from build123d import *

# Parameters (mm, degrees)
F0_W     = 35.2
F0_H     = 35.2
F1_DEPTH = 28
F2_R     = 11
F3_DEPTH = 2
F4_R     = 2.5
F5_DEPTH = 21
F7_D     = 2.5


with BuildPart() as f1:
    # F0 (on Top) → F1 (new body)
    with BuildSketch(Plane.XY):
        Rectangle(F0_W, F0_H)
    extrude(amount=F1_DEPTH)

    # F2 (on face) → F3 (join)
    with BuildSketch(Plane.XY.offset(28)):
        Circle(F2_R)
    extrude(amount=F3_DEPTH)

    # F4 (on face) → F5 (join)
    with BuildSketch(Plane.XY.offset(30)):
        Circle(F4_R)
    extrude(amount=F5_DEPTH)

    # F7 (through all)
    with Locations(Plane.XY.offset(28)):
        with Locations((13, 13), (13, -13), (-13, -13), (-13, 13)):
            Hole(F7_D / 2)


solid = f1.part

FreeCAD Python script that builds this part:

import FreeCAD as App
import Part
import Sketcher
from FreeCAD import Vector
Q = App.Units.Quantity


def add_polygon(sketch, points):
    """Adds a closed chain of lines whose ends are joined by coincident constraints."""
    first, n = sketch.GeometryCount, len(points)
    for a, b in zip(points, points[1:] + points[:1]):
        sketch.addGeometry(Part.LineSegment(App.Vector(*a, 0), App.Vector(*b, 0)), False)
    for i in range(n):
        sketch.addConstraint(Sketcher.Constraint("Coincident", first + i, 2, first + (i + 1) % n, 1))

doc = App.newDocument("Part")
params = doc.addObject("Spreadsheet::Sheet", "Params")
for row, (alias, value) in enumerate([
    ("sketch1_width", "35.2 mm"),
    ("pad1_length", "28 mm"),
    ("sketch2_diameter", "22 mm"),
    ("pad2_length", "2 mm"),
    ("sketch3_diameter", "5 mm"),
    ("pad3_length", "21 mm"),
    ("sketch4_diameter", "2.5 mm"),
    ("hole_diameter", "2.5 mm"),
], start=1):
    params.set(f"A{row}", alias)
    params.set(f"B{row}", "=" + value)
    params.setAlias(f"B{row}", alias)

body = doc.addObject("PartDesign::Body", "Body")

sketch1 = doc.addObject("Sketcher::SketchObject", "Sketch")
body.addObject(sketch1)
sketch1.AttachmentSupport = (doc.XY_Plane, [""])
sketch1.MapMode = "FlatFace"
add_polygon(sketch1, [(-18, 18), (-18, -18), (18, -18), (18, 18)])
sketch1.addConstraint(Sketcher.Constraint("Vertical", 0))
sketch1.addConstraint(Sketcher.Constraint("Horizontal", 1))
sketch1.addConstraint(Sketcher.Constraint("Vertical", 2))
sketch1.addConstraint(Sketcher.Constraint("Horizontal", 3))
sketch1.addConstraint(Sketcher.Constraint("Symmetric", 0, 2, 2, 2, -1, 1))
sketch1.addConstraint(Sketcher.Constraint("Equal", 3, 0))
sketch1.addConstraint(Sketcher.Constraint("DistanceX", 1, 1, 1, 2, Q("35.2 mm")))
sketch1.setExpression("Constraints[10]", "Params.sketch1_width")
pad1 = doc.addObject("PartDesign::Pad", "Pad")
body.addObject(pad1)
pad1.Profile = sketch1
pad1.setExpression("Length", "Params.pad1_length")

sketch2 = doc.addObject("Sketcher::SketchObject", "Sketch001")
body.addObject(sketch2)
sketch2.AttachmentSupport = (doc.XY_Plane, [""])
sketch2.MapMode = "FlatFace"
sketch2.AttachmentOffset = App.Placement(Vector(0, 0, 28), App.Rotation())
sketch2.addGeometry(Part.Circle(Vector(0, 0, 0), Vector(0, 0, 1), 11), False)
sketch2.addConstraint(Sketcher.Constraint("Coincident", 0, 3, -1, 1))
sketch2.addConstraint(Sketcher.Constraint("Diameter", 0, Q("22 mm")))
sketch2.setExpression("Constraints[1]", "Params.sketch2_diameter")
pad2 = doc.addObject("PartDesign::Pad", "Pad001")
body.addObject(pad2)
pad2.Profile = sketch2
pad2.setExpression("Length", "Params.pad2_length")

sketch3 = doc.addObject("Sketcher::SketchObject", "Sketch002")
body.addObject(sketch3)
sketch3.AttachmentSupport = (doc.XY_Plane, [""])
sketch3.MapMode = "FlatFace"
sketch3.AttachmentOffset = App.Placement(Vector(0, 0, 30), App.Rotation())
sketch3.addGeometry(Part.Circle(Vector(0, 0, 0), Vector(0, 0, 1), 2.5), False)
sketch3.addConstraint(Sketcher.Constraint("Coincident", 0, 3, -1, 1))
sketch3.addConstraint(Sketcher.Constraint("Diameter", 0, Q("5 mm")))
sketch3.setExpression("Constraints[1]", "Params.sketch3_diameter")
pad3 = doc.addObject("PartDesign::Pad", "Pad002")
body.addObject(pad3)
pad3.Profile = sketch3
pad3.setExpression("Length", "Params.pad3_length")

sketch4 = doc.addObject("Sketcher::SketchObject", "Sketch003")
body.addObject(sketch4)
sketch4.AttachmentSupport = (doc.XY_Plane, [""])
sketch4.MapMode = "FlatFace"
sketch4.AttachmentOffset = App.Placement(Vector(0, 0, 28), App.Rotation())
sketch4.addGeometry(Part.Circle(Vector(13, 13, 0), Vector(0, 0, 1), 1.2), False)
sketch4.addGeometry(Part.Circle(Vector(13, -13, 0), Vector(0, 0, 1), 1.2), False)
sketch4.addGeometry(Part.Circle(Vector(-13, -13, 0), Vector(0, 0, 1), 1.2), False)
sketch4.addGeometry(Part.Circle(Vector(-13, 13, 0), Vector(0, 0, 1), 1.2), False)
sketch4.addConstraint(Sketcher.Constraint("Equal", 0, 1))
sketch4.addConstraint(Sketcher.Constraint("Equal", 1, 2))
sketch4.addConstraint(Sketcher.Constraint("Equal", 2, 3))
sketch4.addConstraint(Sketcher.Constraint("Symmetric", 0, 3, 2, 3, -1, 1))
sketch4.addConstraint(Sketcher.Constraint("Symmetric", 1, 3, 3, 3, -1, 1))
sketch4.addConstraint(Sketcher.Constraint("Symmetric", 1, 3, 2, 3, -2))
sketch4.addConstraint(Sketcher.Constraint("Diameter", 0, Q("2.5 mm")))
sketch4.addConstraint(Sketcher.Constraint("DistanceX", -1, 1, 0, 3, Q("13 mm")))
sketch4.addConstraint(Sketcher.Constraint("DistanceY", -1, 1, 0, 3, Q("13 mm")))
sketch4.setExpression("Constraints[6]", "Params.sketch4_diameter")
doc.recompute()
hole = doc.addObject("PartDesign::Hole", "Hole")
body.addObject(hole)
hole.Profile = sketch4
hole.ThreadType = "None"
hole.setExpression("Diameter", "Params.hole_diameter")
hole.DepthType = "ThroughAll"

doc.recompute()
